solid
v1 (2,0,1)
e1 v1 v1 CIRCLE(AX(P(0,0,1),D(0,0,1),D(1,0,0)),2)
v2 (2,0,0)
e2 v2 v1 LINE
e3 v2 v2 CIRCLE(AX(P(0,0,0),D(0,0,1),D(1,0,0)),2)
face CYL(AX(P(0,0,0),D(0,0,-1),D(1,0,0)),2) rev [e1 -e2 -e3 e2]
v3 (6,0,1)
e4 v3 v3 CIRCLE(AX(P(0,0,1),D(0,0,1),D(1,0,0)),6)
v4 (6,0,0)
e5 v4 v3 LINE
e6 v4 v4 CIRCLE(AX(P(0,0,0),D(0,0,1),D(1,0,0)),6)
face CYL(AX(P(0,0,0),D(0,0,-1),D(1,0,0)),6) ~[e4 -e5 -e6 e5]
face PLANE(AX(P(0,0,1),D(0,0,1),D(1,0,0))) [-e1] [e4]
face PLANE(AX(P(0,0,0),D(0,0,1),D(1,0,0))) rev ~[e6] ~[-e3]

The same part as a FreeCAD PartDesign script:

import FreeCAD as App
import Part
import Sketcher

V = App.Vector

doc = App.newDocument("Part")
body = doc.addObject("PartDesign::Body", "Body")

sketch1 = doc.addObject("Sketcher::SketchObject", "Sketch")
body.addObject(sketch1)
sketch1.AttachmentSupport = (doc.XY_Plane, [""])
sketch1.MapMode = "FlatFace"
sketch1.addGeometry([
    Part.Circle(V(0, 0, 0), V(0, 0, 1), 6),
    Part.Circle(V(0, 0, 0), V(0, 0, 1), 2),
], False)
sketch1.addConstraint([
    Sketcher.Constraint("Coincident", 0, 3, -1, 1),
    Sketcher.Constraint("Coincident", 1, 3, -1, 1),
    Sketcher.Constraint("Diameter", 0, 12.0),
    Sketcher.Constraint("Diameter", 1, 4.0),
])
pad1 = doc.addObject("PartDesign::Pad", "Pad")
body.addObject(pad1)
pad1.Profile = sketch1
pad1.Length = 1

doc.recompute()
